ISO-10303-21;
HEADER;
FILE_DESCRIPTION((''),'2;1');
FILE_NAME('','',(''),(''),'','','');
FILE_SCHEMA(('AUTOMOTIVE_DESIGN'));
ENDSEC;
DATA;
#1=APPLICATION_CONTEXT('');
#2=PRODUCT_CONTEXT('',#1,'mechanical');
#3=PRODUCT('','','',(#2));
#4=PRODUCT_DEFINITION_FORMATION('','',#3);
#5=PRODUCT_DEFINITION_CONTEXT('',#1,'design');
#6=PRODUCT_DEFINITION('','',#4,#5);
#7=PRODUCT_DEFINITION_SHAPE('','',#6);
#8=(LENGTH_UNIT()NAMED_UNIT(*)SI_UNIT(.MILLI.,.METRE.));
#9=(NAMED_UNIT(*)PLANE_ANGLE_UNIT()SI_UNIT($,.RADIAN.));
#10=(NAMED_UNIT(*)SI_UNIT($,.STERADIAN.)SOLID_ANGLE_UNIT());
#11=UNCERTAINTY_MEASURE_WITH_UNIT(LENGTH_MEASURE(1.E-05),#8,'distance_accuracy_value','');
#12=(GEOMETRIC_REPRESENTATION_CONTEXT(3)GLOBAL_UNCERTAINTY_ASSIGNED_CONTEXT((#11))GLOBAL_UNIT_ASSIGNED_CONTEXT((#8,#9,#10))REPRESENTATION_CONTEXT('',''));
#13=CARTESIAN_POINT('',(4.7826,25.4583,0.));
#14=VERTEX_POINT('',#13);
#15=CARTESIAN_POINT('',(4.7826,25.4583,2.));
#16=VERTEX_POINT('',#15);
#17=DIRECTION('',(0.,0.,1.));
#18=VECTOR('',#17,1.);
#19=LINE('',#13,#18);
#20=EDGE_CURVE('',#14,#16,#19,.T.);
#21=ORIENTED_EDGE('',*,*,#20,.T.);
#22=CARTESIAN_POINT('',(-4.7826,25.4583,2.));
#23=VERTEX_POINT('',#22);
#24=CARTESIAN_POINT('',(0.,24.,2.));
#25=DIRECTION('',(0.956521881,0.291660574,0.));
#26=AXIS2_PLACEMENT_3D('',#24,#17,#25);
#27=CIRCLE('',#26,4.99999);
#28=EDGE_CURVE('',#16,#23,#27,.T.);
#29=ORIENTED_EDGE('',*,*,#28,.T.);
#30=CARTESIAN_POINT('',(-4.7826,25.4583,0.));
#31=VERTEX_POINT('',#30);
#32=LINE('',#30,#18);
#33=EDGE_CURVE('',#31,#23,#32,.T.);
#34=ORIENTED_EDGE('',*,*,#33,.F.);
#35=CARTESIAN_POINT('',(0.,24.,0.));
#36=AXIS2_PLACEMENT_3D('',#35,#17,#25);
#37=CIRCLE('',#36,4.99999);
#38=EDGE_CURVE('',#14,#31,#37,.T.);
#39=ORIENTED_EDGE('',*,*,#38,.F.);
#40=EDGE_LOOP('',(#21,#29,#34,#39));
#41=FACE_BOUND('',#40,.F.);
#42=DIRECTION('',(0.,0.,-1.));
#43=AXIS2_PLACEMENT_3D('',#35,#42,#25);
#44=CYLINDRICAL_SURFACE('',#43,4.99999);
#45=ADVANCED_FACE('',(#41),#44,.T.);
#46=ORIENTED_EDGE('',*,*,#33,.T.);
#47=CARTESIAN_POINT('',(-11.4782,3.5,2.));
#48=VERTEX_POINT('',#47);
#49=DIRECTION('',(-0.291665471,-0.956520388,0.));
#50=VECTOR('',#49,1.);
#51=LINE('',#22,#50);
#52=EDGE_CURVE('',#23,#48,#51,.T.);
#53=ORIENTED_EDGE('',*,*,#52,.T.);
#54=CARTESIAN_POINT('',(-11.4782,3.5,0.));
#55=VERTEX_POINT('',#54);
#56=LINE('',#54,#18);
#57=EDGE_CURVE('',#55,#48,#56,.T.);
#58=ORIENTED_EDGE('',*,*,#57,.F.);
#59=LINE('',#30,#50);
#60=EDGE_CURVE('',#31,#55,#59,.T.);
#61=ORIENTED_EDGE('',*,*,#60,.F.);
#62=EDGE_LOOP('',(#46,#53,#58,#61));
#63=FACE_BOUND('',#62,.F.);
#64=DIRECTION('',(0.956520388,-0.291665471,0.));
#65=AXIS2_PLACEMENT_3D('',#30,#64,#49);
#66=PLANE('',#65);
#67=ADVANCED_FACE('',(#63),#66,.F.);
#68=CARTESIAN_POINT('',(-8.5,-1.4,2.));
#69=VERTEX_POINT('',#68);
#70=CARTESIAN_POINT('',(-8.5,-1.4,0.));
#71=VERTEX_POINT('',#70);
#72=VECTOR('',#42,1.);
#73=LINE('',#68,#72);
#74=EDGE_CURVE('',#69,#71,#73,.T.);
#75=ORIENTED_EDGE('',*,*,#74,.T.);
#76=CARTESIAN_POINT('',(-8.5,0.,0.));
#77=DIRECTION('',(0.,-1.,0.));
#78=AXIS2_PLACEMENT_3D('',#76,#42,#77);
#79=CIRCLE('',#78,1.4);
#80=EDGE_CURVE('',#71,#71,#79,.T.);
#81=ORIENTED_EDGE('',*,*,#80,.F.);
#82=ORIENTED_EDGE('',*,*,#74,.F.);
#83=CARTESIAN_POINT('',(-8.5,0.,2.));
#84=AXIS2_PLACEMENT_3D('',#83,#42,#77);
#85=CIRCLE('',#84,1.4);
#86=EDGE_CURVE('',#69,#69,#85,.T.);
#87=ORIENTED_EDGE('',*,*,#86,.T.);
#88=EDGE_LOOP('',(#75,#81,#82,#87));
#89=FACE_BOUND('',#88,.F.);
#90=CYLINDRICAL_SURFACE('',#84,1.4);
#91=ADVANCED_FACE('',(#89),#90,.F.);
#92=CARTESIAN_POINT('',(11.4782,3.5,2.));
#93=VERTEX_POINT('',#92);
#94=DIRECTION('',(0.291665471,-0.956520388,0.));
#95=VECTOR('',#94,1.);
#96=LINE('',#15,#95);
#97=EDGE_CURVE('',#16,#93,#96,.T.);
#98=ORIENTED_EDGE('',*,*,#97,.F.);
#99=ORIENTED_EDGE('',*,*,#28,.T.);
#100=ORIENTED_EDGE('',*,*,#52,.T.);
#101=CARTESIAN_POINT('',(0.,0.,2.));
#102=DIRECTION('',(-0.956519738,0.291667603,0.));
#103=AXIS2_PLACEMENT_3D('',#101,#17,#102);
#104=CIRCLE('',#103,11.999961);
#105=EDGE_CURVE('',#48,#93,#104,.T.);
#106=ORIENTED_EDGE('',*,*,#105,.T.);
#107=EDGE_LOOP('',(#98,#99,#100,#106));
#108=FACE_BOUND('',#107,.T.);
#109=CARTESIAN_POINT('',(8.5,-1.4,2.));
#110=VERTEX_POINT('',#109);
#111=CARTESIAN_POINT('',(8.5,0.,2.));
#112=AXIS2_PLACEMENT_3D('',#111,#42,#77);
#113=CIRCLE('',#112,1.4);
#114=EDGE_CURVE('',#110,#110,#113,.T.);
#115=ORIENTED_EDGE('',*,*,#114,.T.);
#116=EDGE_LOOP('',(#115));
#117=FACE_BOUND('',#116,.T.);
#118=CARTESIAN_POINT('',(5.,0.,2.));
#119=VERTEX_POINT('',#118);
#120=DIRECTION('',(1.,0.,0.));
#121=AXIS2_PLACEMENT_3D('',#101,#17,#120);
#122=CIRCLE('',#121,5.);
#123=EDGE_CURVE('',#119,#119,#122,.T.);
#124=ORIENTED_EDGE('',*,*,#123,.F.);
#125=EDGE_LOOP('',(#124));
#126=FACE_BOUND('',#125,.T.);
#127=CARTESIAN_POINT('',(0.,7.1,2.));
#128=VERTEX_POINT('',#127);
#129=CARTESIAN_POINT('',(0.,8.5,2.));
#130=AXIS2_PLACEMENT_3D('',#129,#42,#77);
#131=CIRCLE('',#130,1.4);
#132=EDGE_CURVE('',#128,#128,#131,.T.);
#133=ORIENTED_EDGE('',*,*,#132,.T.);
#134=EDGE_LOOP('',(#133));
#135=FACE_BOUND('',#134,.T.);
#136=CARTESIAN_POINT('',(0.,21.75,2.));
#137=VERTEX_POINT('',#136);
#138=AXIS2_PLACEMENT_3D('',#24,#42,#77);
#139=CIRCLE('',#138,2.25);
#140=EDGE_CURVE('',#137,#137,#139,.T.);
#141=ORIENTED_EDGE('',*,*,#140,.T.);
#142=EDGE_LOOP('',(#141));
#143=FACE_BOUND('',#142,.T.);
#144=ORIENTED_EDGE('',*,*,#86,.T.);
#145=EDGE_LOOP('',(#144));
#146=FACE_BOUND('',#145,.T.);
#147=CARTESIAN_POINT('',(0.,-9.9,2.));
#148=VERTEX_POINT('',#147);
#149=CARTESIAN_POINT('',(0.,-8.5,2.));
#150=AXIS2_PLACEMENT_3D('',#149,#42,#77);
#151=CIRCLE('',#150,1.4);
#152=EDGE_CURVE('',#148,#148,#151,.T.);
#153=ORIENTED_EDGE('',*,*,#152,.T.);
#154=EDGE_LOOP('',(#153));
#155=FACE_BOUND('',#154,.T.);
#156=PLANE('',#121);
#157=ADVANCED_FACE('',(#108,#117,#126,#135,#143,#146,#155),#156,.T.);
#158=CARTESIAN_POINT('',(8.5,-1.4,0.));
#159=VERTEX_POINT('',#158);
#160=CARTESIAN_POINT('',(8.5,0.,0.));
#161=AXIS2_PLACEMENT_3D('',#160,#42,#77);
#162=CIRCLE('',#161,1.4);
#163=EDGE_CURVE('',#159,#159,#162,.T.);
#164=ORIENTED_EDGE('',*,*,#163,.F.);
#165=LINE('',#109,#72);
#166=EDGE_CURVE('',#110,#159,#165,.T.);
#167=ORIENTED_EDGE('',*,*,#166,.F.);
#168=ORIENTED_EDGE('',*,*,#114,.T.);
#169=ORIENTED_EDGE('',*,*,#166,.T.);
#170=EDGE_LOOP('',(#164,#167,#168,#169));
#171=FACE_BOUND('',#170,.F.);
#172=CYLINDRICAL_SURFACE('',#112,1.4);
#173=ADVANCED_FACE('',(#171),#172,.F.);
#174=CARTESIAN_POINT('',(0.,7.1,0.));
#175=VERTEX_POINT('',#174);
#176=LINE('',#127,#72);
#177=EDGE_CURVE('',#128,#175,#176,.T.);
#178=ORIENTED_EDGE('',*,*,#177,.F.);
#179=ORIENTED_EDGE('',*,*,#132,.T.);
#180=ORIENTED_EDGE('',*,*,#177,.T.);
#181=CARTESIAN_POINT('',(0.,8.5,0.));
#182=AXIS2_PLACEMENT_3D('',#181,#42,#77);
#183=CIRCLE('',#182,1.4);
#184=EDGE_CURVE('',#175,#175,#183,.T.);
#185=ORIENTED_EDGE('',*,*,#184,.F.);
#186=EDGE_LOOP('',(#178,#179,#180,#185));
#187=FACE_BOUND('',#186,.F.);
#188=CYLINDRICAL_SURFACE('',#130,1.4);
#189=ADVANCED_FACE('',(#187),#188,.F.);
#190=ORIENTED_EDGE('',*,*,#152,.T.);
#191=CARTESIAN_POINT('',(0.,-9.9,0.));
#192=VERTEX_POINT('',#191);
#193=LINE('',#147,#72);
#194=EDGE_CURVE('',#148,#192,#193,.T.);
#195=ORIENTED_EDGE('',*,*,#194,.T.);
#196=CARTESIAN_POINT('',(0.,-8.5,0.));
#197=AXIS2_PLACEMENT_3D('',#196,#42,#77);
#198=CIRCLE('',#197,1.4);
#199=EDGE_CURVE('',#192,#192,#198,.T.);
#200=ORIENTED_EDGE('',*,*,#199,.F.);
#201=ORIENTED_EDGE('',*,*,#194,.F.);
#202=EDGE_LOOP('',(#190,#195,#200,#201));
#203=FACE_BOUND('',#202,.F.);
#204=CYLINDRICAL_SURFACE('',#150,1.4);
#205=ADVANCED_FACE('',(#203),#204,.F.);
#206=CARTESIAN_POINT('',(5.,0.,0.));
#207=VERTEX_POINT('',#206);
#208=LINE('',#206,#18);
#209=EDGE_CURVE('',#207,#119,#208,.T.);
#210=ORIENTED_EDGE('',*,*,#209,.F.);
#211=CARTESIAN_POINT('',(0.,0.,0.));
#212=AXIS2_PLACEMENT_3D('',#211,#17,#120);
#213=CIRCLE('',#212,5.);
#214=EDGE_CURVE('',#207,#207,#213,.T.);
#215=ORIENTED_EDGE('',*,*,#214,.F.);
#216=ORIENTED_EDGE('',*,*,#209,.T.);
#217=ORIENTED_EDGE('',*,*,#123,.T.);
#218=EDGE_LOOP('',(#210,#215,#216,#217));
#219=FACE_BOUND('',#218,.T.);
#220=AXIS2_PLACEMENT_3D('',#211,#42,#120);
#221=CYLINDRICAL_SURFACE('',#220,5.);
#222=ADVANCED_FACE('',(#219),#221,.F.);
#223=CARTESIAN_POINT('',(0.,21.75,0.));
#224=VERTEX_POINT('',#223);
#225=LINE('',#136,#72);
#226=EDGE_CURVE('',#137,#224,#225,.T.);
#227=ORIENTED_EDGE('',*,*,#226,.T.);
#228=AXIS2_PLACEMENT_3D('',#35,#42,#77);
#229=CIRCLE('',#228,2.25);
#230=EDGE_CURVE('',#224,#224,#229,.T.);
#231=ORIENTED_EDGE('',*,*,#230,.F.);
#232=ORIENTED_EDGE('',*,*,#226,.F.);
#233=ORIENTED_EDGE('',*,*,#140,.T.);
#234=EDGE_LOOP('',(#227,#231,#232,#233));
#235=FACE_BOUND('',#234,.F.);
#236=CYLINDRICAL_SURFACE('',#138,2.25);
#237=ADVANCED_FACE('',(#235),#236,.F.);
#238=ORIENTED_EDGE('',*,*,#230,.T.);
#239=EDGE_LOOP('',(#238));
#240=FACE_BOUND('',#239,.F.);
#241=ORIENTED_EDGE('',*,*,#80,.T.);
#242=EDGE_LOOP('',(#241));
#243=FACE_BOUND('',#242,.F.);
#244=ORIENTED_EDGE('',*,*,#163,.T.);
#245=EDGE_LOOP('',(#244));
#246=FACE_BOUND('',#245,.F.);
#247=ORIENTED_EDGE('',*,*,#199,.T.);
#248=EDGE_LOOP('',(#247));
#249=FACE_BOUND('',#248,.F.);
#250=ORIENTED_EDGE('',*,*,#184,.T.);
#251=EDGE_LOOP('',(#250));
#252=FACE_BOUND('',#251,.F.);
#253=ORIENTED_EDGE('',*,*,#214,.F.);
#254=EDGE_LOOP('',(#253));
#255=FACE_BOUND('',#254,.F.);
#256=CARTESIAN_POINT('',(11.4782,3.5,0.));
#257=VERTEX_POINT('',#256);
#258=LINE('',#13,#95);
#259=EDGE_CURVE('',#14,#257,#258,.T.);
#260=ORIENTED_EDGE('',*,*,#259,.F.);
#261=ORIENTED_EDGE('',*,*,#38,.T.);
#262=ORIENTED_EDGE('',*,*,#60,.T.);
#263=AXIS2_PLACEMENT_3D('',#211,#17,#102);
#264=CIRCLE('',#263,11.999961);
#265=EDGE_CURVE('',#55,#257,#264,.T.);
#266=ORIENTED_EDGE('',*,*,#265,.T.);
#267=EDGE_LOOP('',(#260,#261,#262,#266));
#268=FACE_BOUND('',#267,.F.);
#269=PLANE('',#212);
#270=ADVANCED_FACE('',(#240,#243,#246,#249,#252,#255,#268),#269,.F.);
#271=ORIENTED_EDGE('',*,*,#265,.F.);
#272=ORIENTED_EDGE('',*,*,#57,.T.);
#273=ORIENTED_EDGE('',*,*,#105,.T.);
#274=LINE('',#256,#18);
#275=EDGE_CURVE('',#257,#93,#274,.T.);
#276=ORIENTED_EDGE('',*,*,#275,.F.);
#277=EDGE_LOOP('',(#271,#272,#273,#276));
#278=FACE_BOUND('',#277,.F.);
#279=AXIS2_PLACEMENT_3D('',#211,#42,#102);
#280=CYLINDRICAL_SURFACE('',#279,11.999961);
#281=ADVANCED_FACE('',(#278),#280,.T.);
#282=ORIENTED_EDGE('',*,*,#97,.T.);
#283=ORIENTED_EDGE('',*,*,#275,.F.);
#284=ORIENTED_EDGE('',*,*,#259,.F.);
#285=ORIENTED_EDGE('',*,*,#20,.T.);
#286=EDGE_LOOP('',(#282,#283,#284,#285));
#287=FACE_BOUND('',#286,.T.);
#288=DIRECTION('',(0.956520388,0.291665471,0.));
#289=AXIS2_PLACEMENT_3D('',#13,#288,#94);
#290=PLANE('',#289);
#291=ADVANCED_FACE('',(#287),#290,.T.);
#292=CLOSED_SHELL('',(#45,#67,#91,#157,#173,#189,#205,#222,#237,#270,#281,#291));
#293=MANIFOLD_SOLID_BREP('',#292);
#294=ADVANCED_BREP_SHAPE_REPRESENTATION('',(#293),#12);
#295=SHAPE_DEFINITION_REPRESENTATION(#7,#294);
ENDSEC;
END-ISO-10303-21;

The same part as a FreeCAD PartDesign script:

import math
import FreeCAD as App
import Part
import Sketcher

doc = App.newDocument("Part")
params = doc.addObject("Spreadsheet::Sheet", "Params")
for row, (alias, value) in enumerate([
    ("sketch1_diameter", "10 mm"),
    ("sketch1_radius", "12 mm"),
    ("pad1_length", "2 mm"),
    ("sketch2_diameter", "2.8 mm"),
    ("hole_diameter", "2.8 mm"),
    ("sketch3_diameter", "4.5 mm"),
    ("hole2_diameter", "4.5 mm"),
], start=1):
    params.set(f"A{row}", alias)
    params.set(f"B{row}", "=" + value)
    params.setAlias(f"B{row}", alias)

body = doc.addObject("PartDesign::Body", "Body")

sketch1 = body.newObject("Sketcher::SketchObject", "Sketch")
sketch1.AttachmentSupport = (doc.getObject("XY_Plane"), [""])
sketch1.MapMode = "FlatFace"
sketch1.addGeometry([
    Part.LineSegment(App.Vector(-4.8, 25.5, 0), App.Vector(-11.5, 3.5, 0)),
    Part.ArcOfCircle(Part.Circle(App.Vector(0, 0, 0), App.Vector(0, 0, 1), 12), math.radians(163), math.radians(377)),
    Part.LineSegment(App.Vector(11.5, 3.5, 0), App.Vector(4.8, 25.5, 0)),
    Part.ArcOfCircle(Part.Circle(App.Vector(0, 24, 0), App.Vector(0, 0, 1), 5), math.radians(17), math.radians(163)),
    Part.Circle(App.Vector(0, 0, 0), App.Vector(0, 0, 1), 5),
], False)
sketch1.addConstraint([
    Sketcher.Constraint("Tangent", 0, 2, 1, 1),
    Sketcher.Constraint("Tangent", 1, 2, 2, 1),
    Sketcher.Constraint("Tangent", 2, 2, 3, 1),
    Sketcher.Constraint("Tangent", 3, 2, 0, 1),
    Sketcher.Constraint("Coincident", 1, 3, -1, 1),
    Sketcher.Constraint("Coincident", 4, 3, -1, 1),
    Sketcher.Constraint("Equal", 3, 4),
    Sketcher.Constraint("PointOnObject", 3, 3, -2),
    Sketcher.Constraint("Diameter", 4, 10.0),
    Sketcher.Constraint("Radius", 1, 12.0),
    Sketcher.Constraint("DistanceY", -1, 1, 3, 3, 24.0),
])
sketch1.setExpression("Constraints[8]", "Params.sketch1_diameter")
sketch1.setExpression("Constraints[9]", "Params.sketch1_radius")
pad1 = body.newObject("PartDesign::Pad", "Pad")
pad1.Profile = sketch1
pad1.setExpression("Length", "Params.pad1_length")

sketch2 = body.newObject("Sketcher::SketchObject", "Sketch001")
sketch2.AttachmentSupport = (doc.getObject("XY_Plane"), [""])
sketch2.MapMode = "FlatFace"
sketch2.AttachmentOffset = App.Placement(App.Vector(0, 0, 2), App.Rotation())
sketch2.addGeometry([
    Part.Circle(App.Vector(8.5, 0, 0), App.Vector(0, 0, 1), 1.4),
    Part.Circle(App.Vector(0, 8.5, 0), App.Vector(0, 0, 1), 1.4),
    Part.Circle(App.Vector(-8.5, 0, 0), App.Vector(0, 0, 1), 1.4),
    Part.Circle(App.Vector(0, -8.5, 0), App.Vector(0, 0, 1), 1.4),
], False)
sketch2.addConstraint([
    Sketcher.Constraint("Equal", 0, 1),
    Sketcher.Constraint("Equal", 1, 2),
    Sketcher.Constraint("Equal", 2, 3),
    Sketcher.Constraint("Symmetric", 0, 3, 2, 3, -1, 1),
    Sketcher.Constraint("Symmetric", 1, 3, 3, 3, -1, 1),
    Sketcher.Constraint("PointOnObject", 0, 3, -1),
    Sketcher.Constraint("PointOnObject", 1, 3, -2),
    Sketcher.Constraint("Diameter", 0, 2.8),
    Sketcher.Constraint("DistanceX", 2, 3, 0, 3, 17.0),
    Sketcher.Constraint("DistanceY", 3, 3, 1, 3, 17.0),
])
sketch2.setExpression("Constraints[7]", "Params.sketch2_diameter")
doc.recompute()
hole = body.newObject("PartDesign::Hole", "Hole")
hole.Profile = sketch2
hole.ThreadType = "None"
hole.setExpression("Diameter", "Params.hole_diameter")
hole.DepthType = "ThroughAll"

sketch3 = body.newObject("Sketcher::SketchObject", "Sketch002")
sketch3.AttachmentSupport = (doc.getObject("XY_Plane"), [""])
sketch3.MapMode = "FlatFace"
sketch3.AttachmentOffset = App.Placement(App.Vector(0, 0, 2), App.Rotation())
sketch3.addGeometry(Part.Circle(App.Vector(0, 24, 0), App.Vector(0, 0, 1), 2.2), False)
sketch3.addConstraint([
    Sketcher.Constraint("PointOnObject", 0, 3, -2),
    Sketcher.Constraint("Diameter", 0, 4.5),
    Sketcher.Constraint("DistanceY", -1, 1, 0, 3, 24.0),
])
sketch3.setExpression("Constraints[1]", "Params.sketch3_diameter")
doc.recompute()
hole2 = body.newObject("PartDesign::Hole", "Hole001")
hole2.Profile = sketch3
hole2.ThreadType = "None"
hole2.setExpression("Diameter", "Params.hole2_diameter")
hole2.DepthType = "ThroughAll"

doc.recompute()
